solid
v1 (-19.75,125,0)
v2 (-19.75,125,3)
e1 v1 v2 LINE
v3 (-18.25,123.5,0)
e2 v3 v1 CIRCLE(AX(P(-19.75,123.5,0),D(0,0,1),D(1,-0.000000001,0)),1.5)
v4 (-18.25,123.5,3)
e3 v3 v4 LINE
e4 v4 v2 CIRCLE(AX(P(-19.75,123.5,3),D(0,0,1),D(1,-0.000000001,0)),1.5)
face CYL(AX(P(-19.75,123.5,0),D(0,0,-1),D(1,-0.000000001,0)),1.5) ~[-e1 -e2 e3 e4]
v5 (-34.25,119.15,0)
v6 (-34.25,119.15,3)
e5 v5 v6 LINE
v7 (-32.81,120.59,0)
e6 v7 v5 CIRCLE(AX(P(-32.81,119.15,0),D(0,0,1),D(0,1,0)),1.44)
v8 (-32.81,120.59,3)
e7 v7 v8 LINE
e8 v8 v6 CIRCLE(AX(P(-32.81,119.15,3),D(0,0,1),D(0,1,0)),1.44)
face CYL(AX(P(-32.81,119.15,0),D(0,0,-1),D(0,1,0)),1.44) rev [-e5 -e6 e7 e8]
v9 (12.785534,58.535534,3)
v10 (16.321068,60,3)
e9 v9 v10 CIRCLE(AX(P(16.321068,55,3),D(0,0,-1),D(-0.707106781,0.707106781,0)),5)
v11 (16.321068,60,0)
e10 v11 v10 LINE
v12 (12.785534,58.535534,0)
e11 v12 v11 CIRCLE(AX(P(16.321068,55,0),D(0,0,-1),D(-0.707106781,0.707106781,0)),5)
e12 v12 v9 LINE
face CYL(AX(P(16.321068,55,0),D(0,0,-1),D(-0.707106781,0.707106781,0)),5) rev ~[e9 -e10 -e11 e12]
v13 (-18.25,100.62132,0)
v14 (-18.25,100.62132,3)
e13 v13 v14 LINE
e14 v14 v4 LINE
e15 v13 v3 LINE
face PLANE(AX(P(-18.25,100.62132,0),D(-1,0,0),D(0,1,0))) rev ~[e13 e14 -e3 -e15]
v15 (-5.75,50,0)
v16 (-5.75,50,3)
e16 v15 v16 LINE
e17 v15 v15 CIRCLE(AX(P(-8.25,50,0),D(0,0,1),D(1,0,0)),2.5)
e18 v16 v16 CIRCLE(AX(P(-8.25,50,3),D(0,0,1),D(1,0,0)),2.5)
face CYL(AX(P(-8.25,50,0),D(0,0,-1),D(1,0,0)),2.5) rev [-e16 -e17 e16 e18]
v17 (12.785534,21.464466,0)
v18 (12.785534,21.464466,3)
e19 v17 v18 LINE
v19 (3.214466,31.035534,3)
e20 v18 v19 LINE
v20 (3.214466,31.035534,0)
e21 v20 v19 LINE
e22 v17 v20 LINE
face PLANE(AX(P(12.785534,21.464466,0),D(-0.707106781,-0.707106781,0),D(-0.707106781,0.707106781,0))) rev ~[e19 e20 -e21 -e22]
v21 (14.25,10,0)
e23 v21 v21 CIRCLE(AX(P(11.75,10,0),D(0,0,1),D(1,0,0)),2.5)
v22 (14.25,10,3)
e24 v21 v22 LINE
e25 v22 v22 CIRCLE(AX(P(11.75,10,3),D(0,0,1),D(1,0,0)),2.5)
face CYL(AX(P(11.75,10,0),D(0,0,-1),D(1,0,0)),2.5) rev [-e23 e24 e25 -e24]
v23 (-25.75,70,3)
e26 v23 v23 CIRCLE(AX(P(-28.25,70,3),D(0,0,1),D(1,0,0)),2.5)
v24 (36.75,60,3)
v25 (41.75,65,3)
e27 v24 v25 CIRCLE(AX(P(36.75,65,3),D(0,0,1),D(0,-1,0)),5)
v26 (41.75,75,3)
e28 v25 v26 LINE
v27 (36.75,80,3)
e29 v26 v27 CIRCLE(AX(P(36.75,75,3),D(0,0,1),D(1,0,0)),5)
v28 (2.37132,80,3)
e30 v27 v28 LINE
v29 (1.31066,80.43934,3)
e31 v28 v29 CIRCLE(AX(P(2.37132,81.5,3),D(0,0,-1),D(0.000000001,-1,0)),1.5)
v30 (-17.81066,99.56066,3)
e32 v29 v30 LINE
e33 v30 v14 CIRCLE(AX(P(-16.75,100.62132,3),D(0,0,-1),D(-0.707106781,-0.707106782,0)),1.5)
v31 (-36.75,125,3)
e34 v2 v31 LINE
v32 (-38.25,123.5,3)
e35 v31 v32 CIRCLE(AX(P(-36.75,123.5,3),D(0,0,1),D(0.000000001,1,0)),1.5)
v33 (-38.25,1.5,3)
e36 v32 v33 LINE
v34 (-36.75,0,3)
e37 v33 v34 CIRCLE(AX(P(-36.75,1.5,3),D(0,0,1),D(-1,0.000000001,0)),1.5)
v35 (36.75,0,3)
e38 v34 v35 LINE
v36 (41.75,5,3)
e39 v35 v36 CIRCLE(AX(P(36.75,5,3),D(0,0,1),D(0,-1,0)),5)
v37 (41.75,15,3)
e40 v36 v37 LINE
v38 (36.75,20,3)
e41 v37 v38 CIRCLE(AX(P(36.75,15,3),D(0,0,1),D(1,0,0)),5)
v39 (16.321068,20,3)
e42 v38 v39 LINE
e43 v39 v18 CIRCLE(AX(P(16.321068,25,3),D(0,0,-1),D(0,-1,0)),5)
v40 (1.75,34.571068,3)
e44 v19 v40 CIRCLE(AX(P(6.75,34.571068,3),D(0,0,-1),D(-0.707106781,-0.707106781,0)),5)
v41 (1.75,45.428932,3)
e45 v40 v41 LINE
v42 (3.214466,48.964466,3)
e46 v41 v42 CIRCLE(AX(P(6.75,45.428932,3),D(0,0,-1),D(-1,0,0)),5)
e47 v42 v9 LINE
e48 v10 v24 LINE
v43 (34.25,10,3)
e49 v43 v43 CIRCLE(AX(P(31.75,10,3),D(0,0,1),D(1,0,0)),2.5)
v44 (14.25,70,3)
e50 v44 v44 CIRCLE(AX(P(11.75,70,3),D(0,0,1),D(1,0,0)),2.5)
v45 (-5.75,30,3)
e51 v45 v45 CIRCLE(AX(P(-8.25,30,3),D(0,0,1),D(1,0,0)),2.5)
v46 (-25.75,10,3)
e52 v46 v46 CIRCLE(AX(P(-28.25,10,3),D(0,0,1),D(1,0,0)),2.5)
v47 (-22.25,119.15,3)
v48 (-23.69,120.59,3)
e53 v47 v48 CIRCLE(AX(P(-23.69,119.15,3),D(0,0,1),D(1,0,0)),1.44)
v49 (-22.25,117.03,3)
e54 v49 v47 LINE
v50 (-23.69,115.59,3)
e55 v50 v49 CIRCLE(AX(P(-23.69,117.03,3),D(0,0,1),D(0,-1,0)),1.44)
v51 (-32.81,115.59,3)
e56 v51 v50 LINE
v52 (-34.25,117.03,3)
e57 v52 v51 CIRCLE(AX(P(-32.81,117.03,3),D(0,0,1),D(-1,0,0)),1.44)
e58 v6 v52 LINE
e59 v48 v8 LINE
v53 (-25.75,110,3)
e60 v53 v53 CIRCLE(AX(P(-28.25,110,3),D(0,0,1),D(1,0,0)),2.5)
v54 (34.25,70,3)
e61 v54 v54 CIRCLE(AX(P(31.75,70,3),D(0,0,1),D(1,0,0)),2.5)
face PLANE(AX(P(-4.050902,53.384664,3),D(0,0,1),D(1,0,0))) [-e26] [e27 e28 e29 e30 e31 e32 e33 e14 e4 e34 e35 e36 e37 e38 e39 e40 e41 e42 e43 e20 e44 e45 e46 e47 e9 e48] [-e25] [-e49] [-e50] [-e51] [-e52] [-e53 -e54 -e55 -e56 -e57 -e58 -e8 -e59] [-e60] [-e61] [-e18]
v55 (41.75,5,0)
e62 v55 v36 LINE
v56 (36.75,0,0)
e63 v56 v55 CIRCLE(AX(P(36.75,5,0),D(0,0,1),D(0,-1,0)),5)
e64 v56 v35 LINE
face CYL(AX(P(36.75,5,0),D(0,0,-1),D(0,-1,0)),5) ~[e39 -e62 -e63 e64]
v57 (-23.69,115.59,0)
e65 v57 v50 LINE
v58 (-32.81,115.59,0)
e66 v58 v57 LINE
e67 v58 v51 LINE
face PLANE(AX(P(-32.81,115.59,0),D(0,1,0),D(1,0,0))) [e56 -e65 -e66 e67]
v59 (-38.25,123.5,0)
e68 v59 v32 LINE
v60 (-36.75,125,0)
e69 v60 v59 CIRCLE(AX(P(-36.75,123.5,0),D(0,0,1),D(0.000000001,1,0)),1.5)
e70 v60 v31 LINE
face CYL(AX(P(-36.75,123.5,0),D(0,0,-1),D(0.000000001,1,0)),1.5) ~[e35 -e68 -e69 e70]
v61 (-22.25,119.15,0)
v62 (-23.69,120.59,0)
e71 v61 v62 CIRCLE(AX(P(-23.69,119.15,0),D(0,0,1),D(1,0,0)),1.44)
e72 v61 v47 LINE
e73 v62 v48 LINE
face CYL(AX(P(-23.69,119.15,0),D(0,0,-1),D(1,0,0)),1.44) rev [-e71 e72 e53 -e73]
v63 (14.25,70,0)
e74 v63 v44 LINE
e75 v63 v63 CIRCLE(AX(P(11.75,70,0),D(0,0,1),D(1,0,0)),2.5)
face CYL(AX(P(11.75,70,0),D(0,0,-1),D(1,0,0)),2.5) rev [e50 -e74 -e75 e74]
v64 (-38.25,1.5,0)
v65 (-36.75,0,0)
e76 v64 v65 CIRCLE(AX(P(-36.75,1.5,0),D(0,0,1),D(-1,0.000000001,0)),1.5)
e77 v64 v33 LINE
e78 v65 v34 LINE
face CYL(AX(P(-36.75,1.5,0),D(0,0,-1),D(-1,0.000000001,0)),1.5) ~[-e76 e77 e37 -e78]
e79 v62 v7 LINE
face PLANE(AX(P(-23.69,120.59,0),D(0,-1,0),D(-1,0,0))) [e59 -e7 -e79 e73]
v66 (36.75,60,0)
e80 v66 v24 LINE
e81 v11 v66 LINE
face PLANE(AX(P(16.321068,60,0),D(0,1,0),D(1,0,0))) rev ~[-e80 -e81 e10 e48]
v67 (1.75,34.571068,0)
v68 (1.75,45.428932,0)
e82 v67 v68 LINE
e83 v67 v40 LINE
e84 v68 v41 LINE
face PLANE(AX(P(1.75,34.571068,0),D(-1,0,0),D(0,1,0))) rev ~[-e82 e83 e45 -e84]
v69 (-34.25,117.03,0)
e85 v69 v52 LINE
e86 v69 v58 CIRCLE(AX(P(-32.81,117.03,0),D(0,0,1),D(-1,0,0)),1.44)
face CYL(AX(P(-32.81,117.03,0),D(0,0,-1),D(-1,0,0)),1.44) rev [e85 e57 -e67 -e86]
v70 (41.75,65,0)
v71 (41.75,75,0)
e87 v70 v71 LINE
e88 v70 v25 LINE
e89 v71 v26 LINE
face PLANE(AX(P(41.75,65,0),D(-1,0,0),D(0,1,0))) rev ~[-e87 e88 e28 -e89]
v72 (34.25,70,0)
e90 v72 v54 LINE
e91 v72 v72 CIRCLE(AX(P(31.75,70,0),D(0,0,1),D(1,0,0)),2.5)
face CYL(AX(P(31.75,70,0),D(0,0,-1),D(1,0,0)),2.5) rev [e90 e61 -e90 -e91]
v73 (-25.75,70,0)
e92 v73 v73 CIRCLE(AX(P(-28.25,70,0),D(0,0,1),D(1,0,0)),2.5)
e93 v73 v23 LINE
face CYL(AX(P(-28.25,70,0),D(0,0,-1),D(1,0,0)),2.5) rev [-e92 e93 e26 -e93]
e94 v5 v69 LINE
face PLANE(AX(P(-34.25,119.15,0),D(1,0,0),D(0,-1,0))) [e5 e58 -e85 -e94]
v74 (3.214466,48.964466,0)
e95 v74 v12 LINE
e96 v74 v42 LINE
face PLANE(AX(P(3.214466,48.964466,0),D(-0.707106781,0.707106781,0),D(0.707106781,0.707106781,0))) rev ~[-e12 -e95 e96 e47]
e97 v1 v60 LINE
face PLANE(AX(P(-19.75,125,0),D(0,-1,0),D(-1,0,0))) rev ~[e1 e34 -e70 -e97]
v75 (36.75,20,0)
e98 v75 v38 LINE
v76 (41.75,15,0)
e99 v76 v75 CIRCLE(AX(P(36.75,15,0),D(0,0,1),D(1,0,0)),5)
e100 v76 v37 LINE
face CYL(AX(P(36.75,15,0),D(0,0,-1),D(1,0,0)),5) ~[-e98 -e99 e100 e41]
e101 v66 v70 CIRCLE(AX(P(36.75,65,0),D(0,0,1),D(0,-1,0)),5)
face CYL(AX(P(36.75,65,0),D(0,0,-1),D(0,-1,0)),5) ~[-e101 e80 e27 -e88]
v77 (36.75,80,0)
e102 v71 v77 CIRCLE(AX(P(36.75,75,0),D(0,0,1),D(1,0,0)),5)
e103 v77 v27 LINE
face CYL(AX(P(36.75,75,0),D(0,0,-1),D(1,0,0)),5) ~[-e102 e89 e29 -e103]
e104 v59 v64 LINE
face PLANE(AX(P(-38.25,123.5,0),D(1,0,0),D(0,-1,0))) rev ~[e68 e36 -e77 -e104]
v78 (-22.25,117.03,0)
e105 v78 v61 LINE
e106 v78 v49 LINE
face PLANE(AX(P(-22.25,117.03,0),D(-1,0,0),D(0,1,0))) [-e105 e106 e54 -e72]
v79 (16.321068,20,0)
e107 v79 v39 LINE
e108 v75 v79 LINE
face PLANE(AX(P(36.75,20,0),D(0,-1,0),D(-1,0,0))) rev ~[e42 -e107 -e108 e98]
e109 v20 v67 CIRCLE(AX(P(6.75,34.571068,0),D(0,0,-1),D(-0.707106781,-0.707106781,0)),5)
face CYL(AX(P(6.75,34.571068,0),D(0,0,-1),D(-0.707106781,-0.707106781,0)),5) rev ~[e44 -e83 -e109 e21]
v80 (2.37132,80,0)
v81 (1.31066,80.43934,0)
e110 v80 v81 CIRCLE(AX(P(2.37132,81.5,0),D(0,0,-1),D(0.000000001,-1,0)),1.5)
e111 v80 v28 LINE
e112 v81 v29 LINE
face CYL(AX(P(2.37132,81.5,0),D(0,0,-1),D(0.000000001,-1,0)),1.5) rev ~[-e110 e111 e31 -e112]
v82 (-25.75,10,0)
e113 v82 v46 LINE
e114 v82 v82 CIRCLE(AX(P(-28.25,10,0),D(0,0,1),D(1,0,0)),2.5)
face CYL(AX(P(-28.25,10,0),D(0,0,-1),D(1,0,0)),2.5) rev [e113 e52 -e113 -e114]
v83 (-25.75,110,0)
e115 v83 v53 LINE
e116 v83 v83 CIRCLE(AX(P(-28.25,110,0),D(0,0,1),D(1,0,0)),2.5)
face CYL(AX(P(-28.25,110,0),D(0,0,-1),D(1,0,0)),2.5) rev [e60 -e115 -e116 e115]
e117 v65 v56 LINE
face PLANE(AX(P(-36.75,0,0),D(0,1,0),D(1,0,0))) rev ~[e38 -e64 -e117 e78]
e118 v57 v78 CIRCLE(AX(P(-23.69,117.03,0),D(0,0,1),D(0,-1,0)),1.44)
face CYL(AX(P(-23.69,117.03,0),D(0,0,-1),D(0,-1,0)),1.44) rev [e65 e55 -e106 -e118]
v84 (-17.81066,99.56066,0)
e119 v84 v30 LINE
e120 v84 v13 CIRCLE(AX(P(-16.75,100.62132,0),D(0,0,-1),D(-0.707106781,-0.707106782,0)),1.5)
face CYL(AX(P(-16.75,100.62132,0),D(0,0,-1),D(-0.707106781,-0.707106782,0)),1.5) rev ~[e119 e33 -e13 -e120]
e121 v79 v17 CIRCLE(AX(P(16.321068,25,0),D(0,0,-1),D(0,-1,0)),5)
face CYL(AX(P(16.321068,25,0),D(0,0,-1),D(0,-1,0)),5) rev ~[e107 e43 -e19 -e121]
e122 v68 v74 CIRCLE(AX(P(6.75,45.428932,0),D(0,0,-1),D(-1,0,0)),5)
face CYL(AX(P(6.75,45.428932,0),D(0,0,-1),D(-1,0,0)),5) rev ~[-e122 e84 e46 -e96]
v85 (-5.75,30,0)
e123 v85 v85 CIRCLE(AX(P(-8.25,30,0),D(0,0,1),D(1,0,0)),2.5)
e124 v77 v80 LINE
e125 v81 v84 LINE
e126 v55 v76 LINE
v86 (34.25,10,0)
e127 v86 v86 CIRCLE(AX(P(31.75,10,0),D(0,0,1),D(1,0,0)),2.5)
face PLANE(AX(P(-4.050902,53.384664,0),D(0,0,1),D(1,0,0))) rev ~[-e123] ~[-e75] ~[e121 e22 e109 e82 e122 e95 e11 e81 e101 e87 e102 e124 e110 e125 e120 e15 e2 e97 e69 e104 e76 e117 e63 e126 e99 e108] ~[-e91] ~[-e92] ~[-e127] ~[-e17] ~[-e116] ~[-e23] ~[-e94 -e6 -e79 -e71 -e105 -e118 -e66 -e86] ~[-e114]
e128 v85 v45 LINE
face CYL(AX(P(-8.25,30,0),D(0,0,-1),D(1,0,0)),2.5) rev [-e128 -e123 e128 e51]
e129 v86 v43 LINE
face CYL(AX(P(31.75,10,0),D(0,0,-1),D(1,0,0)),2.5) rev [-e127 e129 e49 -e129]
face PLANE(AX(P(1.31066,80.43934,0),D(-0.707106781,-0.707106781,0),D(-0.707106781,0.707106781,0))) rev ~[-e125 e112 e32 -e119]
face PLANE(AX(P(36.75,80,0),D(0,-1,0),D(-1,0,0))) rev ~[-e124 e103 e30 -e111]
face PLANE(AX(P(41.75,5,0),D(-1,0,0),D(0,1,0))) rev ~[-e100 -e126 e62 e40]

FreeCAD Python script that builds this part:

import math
import FreeCAD as App
import Part
import Sketcher

doc = App.newDocument("Part")
body = doc.addObject("PartDesign::Body", "Body")

sketch1 = body.newObject("Sketcher::SketchObject", "Sketch")
sketch1.AttachmentSupport = (doc.getObject("XY_Plane"), [""])
sketch1.MapMode = "FlatFace"
sketch1.addGeometry([
    Part.LineSegment(App.Vector(-36.8, 0, 0), App.Vector(36.8, 0, 0)),
    Part.ArcOfCircle(Part.Circle(App.Vector(36.8, 5, 0), App.Vector(0, 0, 1), 5), math.radians(-90), math.radians(0)),
    Part.LineSegment(App.Vector(41.8, 5, 0), App.Vector(41.8, 15, 0)),
    Part.ArcOfCircle(Part.Circle(App.Vector(36.8, 15, 0), App.Vector(0, 0, 1), 5), math.radians(0), math.radians(90)),
    Part.LineSegment(App.Vector(36.8, 20, 0), App.Vector(16.3, 20, 0)),
    Part.ArcOfCircle(Part.Circle(App.Vector(16.3, 25, 0), App.Vector(0, 0, 1), 5), math.radians(-135), math.radians(-90)),
    Part.LineSegment(App.Vector(12.8, 21.5, 0), App.Vector(3.2, 31, 0)),
    Part.ArcOfCircle(Part.Circle(App.Vector(6.7, 34.6, 0), App.Vector(0, 0, 1), 5), math.radians(180), math.radians(225)),
    Part.LineSegment(App.Vector(1.8, 34.6, 0), App.Vector(1.8, 45.4, 0)),
    Part.ArcOfCircle(Part.Circle(App.Vector(6.7, 45.4, 0), App.Vector(0, 0, 1), 5), math.radians(135), math.radians(180)),
    Part.LineSegment(App.Vector(3.2, 49, 0), App.Vector(12.8, 58.5, 0)),
    Part.ArcOfCircle(Part.Circle(App.Vector(16.3, 55, 0), App.Vector(0, 0, 1), 5), math.radians(90), math.radians(135)),
    Part.LineSegment(App.Vector(16.3, 60, 0), App.Vector(36.8, 60, 0)),
    Part.ArcOfCircle(Part.Circle(App.Vector(36.8, 65, 0), App.Vector(0, 0, 1), 5), math.radians(-90), math.radians(0)),
    Part.LineSegment(App.Vector(41.8, 65, 0), App.Vector(41.8, 75, 0)),
    Part.ArcOfCircle(Part.Circle(App.Vector(36.8, 75, 0), App.Vector(0, 0, 1), 5), math.radians(0), math.radians(90)),
    Part.LineSegment(App.Vector(36.8, 80, 0), App.Vector(2.4, 80, 0)),
    Part.ArcOfCircle(Part.Circle(App.Vector(2.4, 81.5, 0), App.Vector(0, 0, 1), 1.5), math.radians(-135), math.radians(-90)),
    Part.LineSegment(App.Vector(1.3, 80.4, 0), App.Vector(-17.8, 99.6, 0)),
    Part.ArcOfCircle(Part.Circle(App.Vector(-16.8, 100.6, 0), App.Vector(0, 0, 1), 1.5), math.radians(180), math.radians(225)),
    Part.LineSegment(App.Vector(-18.2, 100.6, 0), App.Vector(-18.2, 123.5, 0)),
    Part.ArcOfCircle(Part.Circle(App.Vector(-19.7, 123.5, 0), App.Vector(0, 0, 1), 1.5), math.radians(0), math.radians(90)),
    Part.LineSegment(App.Vector(-19.8, 125, 0), App.Vector(-36.8, 125, 0)),
    Part.ArcOfCircle(Part.Circle(App.Vector(-36.8, 123.5, 0), App.Vector(0, 0, 1), 1.5), math.radians(90), math.radians(180)),
    Part.LineSegment(App.Vector(-38.2, 123.5, 0), App.Vector(-38.2, 1.5, 0)),
    Part.ArcOfCircle(Part.Circle(App.Vector(-36.8, 1.5, 0), App.Vector(0, 0, 1), 1.5), math.radians(180), math.radians(270)),
    Part.Circle(App.Vector(-28.2, 10, 0), App.Vector(0, 0, 1), 2.5),
    Part.Circle(App.Vector(-8.2, 30, 0), App.Vector(0, 0, 1), 2.5),
    Part.Circle(App.Vector(-8.2, 50, 0), App.Vector(0, 0, 1), 2.5),
    Part.Circle(App.Vector(11.8, 10, 0), App.Vector(0, 0, 1), 2.5),
    Part.Circle(App.Vector(31.8, 10, 0), App.Vector(0, 0, 1), 2.5),
    Part.Circle(App.Vector(-28.2, 70, 0), App.Vector(0, 0, 1), 2.5),
    Part.Circle(App.Vector(-28.2, 110, 0), App.Vector(0, 0, 1), 2.5),
    Part.LineSegment(App.Vector(-34.2, 117, 0), App.Vector(-34.2, 119.2, 0)),
    Part.ArcOfCircle(Part.Circle(App.Vector(-32.8, 119.2, 0), App.Vector(0, 0, 1), 1.4), math.radians(90), math.radians(180)),
    Part.LineSegment(App.Vector(-32.8, 120.6, 0), App.Vector(-23.7, 120.6, 0)),
    Part.ArcOfCircle(Part.Circle(App.Vector(-23.7, 119.2, 0), App.Vector(0, 0, 1), 1.4), math.radians(0), math.radians(90)),
    Part.LineSegment(App.Vector(-22.2, 119.2, 0), App.Vector(-22.2, 117, 0)),
    Part.ArcOfCircle(Part.Circle(App.Vector(-23.7, 117, 0), App.Vector(0, 0, 1), 1.4), math.radians(-90), math.radians(0)),
    Part.LineSegment(App.Vector(-23.7, 115.6, 0), App.Vector(-32.8, 115.6, 0)),
    Part.ArcOfCircle(Part.Circle(App.Vector(-32.8, 117, 0), App.Vector(0, 0, 1), 1.4), math.radians(180), math.radians(270)),
    Part.Circle(App.Vector(11.8, 70, 0), App.Vector(0, 0, 1), 2.5),
    Part.Circle(App.Vector(31.8, 70, 0), App.Vector(0, 0, 1), 2.5),
], False)
sketch1.addConstraint([
    Sketcher.Constraint("Tangent", 0, 2, 1, 1),
    Sketcher.Constraint("Tangent", 1, 2, 2, 1),
    Sketcher.Constraint("Tangent", 2, 2, 3, 1),
    Sketcher.Constraint("Tangent", 3, 2, 4, 1),
    Sketcher.Constraint("Tangent", 4, 2, 5, 2),
    Sketcher.Constraint("Tangent", 5, 1, 6, 1),
    Sketcher.Constraint("Tangent", 6, 2, 7, 2),
    Sketcher.Constraint("Tangent", 7, 1, 8, 1),
    Sketcher.Constraint("Tangent", 8, 2, 9, 2),
    Sketcher.Constraint("Tangent", 9, 1, 10, 1),
    Sketcher.Constraint("Tangent", 10, 2, 11, 2),
    Sketcher.Constraint("Tangent", 11, 1, 12, 1),
    Sketcher.Constraint("Tangent", 12, 2, 13, 1),
    Sketcher.Constraint("Tangent", 13, 2, 14, 1),
    Sketcher.Constraint("Tangent", 14, 2, 15, 1),
    Sketcher.Constraint("Tangent", 15, 2, 16, 1),
    Sketcher.Constraint("Tangent", 16, 2, 17, 2),
    Sketcher.Constraint("Tangent", 17, 1, 18, 1),
    Sketcher.Constraint("Tangent", 18, 2, 19, 2),
    Sketcher.Constraint("Tangent", 19, 1, 20, 1),
    Sketcher.Constraint("Tangent", 20, 2, 21, 1),
    Sketcher.Constraint("Tangent", 21, 2, 22, 1),
    Sketcher.Constraint("Tangent", 22, 2, 23, 1),
    Sketcher.Constraint("Tangent", 23, 2, 24, 1),
    Sketcher.Constraint("Tangent", 24, 2, 25, 1),
    Sketcher.Constraint("Tangent", 25, 2, 0, 1),
    Sketcher.Constraint("Tangent", 33, 2, 34, 2),
    Sketcher.Constraint("Tangent", 34, 1, 35, 1),
    Sketcher.Constraint("Tangent", 35, 2, 36, 2),
    Sketcher.Constraint("Tangent", 36, 1, 37, 1),
    Sketcher.Constraint("Tangent", 37, 2, 38, 2),
    Sketcher.Constraint("Tangent", 38, 1, 39, 1),
    Sketcher.Constraint("Tangent", 39, 2, 40, 2),
    Sketcher.Constraint("Tangent", 40, 1, 33, 1),
    Sketcher.Constraint("Horizontal", 0),
    Sketcher.Constraint("Vertical", 2),
    Sketcher.Constraint("Horizontal", 4),
    Sketcher.Constraint("Vertical", 8),
    Sketcher.Constraint("Horizontal", 12),
    Sketcher.Constraint("Vertical", 14),
    Sketcher.Constraint("Horizontal", 16),
    Sketcher.Constraint("Vertical", 20),
    Sketcher.Constraint("Horizontal", 22),
    Sketcher.Constraint("Vertical", 24),
    Sketcher.Constraint("Vertical", 33),
    Sketcher.Constraint("Horizontal", 35),
    Sketcher.Constraint("Vertical", 37),
    Sketcher.Constraint("Horizontal", 39),
    Sketcher.Constraint("Equal", 1, 3),
    Sketcher.Constraint("Equal", 3, 5),
    Sketcher.Constraint("Equal", 5, 7),
    Sketcher.Constraint("Equal", 7, 9),
    Sketcher.Constraint("Equal", 9, 11),
    Sketcher.Constraint("Equal", 11, 13),
    Sketcher.Constraint("Equal", 13, 15),
    Sketcher.Constraint("Equal", 17, 19),
    Sketcher.Constraint("Equal", 19, 21),
    Sketcher.Constraint("Equal", 21, 23),
    Sketcher.Constraint("Equal", 23, 25),
    Sketcher.Constraint("Equal", 26, 27),
    Sketcher.Constraint("Equal", 27, 28),
    Sketcher.Constraint("Equal", 28, 29),
    Sketcher.Constraint("Equal", 29, 30),
    Sketcher.Constraint("Equal", 30, 31),
    Sketcher.Constraint("Equal", 31, 32),
    Sketcher.Constraint("Equal", 34, 36),
    Sketcher.Constraint("Equal", 36, 38),
    Sketcher.Constraint("Equal", 38, 40),
    Sketcher.Constraint("Equal", 32, 41),
    Sketcher.Constraint("Equal", 41, 42),
    Sketcher.Constraint("Symmetric", 0, 2, 25, 2, -1, 1),
    Sketcher.Constraint("Perpendicular", 6, 10),
    Sketcher.Constraint("Perpendicular", 10, 18),
    Sketcher.Constraint("Horizontal", 26, 3, 29, 3),
    Sketcher.Constraint("Horizontal", 29, 3, 30, 3),
    Sketcher.Constraint("Horizontal", 31, 3, 41, 3),
    Sketcher.Constraint("Horizontal", 41, 3, 42, 3),
    Sketcher.Constraint("Vertical", 5, 3, 11, 3),
    Sketcher.Constraint("Vertical", 3, 3, 13, 3),
    Sketcher.Constraint("Vertical", 27, 3, 28, 3),
    Sketcher.Constraint("Vertical", 26, 3, 31, 3),
    Sketcher.Constraint("Vertical", 31, 3, 32, 3),
    Sketcher.Constraint("Vertical", 29, 3, 41, 3),
    Sketcher.Constraint("Vertical", 30, 3, 42, 3),
    Sketcher.Constraint("Vertical", 6, 2, 9, 1),
    Sketcher.Constraint("Equal", 2, 14),
    Sketcher.Constraint("Diameter", 26, 5.0),
    Sketcher.Constraint("Radius", 1, 5.0),
    Sketcher.Constraint("Radius", 17, 1.5),
    Sketcher.Constraint("DistanceX", 22, 2, 22, 1, 17.0),
    Sketcher.Constraint("DistanceY", 2, 1, 2, 2, 10.0),
    Sketcher.Constraint("DistanceY", 24, 2, 24, 1, 122.0),
    Sketcher.Constraint("Radius", 34, 1.44),
    Sketcher.Constraint("DistanceX", 0, 1, 0, 2, 73.5),
    Sketcher.Constraint("DistanceY", -1, 1, 11, 3, 55.0),
    Sketcher.Constraint("DistanceY", -1, 1, 26, 3, 10.0),
    Sketcher.Constraint("DistanceY", -1, 1, 27, 3, 30.0),
    Sketcher.Constraint("DistanceY", -1, 1, 28, 3, 50.0),
    Sketcher.Constraint("DistanceY", -1, 1, 31, 3, 70.0),
    Sketcher.Constraint("DistanceY", -1, 1, 32, 3, 110.0),
    Sketcher.Constraint("DistanceX", 7, 3, 3, 3, 30.0),
    Sketcher.Constraint("DistanceX", 26, 3, 7, 3, 35.0),
    Sketcher.Constraint("DistanceX", 27, 3, 7, 3, 15.0),
    Sketcher.Constraint("DistanceX", 7, 3, 29, 3, 5.0),
    Sketcher.Constraint("DistanceX", 30, 3, 1, 3, 5.0),
    Sketcher.Constraint("DistanceX", 23, 2, 33, 2, 4.0),
    Sketcher.Constraint("DistanceX", 36, 1, 20, 2, 4.0),
    Sketcher.Constraint("DistanceY", 38, 1, 35, 2, 5.0),
    Sketcher.Constraint("DistanceY", -1, 1, 34, 3, 119.15),
    Sketcher.Constraint("DistanceX", 16, 2, 16, 1, 34.37868),
    Sketcher.Constraint("DistanceY", 5, 1, 7, 3, 13.106602),
])
pad1 = body.newObject("PartDesign::Pad", "Pad")
pad1.Profile = sketch1
pad1.Length = 3

doc.recompute()
